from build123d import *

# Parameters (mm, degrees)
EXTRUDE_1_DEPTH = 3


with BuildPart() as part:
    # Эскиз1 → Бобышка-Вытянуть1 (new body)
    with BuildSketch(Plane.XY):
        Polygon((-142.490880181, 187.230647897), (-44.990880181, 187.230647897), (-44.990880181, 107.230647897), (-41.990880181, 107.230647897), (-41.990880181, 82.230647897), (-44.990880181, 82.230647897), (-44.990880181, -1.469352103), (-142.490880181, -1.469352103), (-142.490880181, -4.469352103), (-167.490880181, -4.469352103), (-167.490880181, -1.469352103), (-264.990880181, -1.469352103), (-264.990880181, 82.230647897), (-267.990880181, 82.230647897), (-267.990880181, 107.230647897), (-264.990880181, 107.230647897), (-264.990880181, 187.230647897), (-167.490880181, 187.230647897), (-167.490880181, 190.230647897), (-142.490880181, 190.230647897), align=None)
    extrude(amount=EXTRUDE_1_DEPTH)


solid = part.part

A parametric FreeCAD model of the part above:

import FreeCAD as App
import Part
import Sketcher
Q = App.Units.Quantity


def add_polygon(sketch, points):
    """Adds a closed chain of lines whose ends are joined by coincident constraints."""
    first, n = sketch.GeometryCount, len(points)
    for a, b in zip(points, points[1:] + points[:1]):
        sketch.addGeometry(Part.LineSegment(App.Vector(*a, 0), App.Vector(*b, 0)), False)
    for i in range(n):
        sketch.addConstraint(Sketcher.Constraint("Coincident", first + i, 2, first + (i + 1) % n, 1))

doc = App.newDocument("Part")
body = doc.addObject("PartDesign::Body", "Body")

# Sketch on XY plane
sketch1 = body.newObject("Sketcher::SketchObject", "Sketch")
sketch1.AttachmentSupport = (doc.getObject("XY_Plane"), [""])
sketch1.MapMode = "FlatFace"
add_polygon(sketch1, [(-45, 187.2), (-142.5, 187.2), (-142.5, 190.2), (-167.5, 190.2), (-167.5, 187.2), (-265, 187.2), (-265, 107.2), (-268, 107.2), (-268, 82.2), (-265, 82.2), (-265, -1.5), (-167.5, -1.5), (-167.5, -4.5), (-142.5, -4.5), (-142.5, -1.5), (-45, -1.5), (-45, 82.2), (-42, 82.2), (-42, 107.2), (-45, 107.2)])  # lines 0-19
sketch1.addConstraint(Sketcher.Constraint("Horizontal", 0))
sketch1.addConstraint(Sketcher.Constraint("Vertical", 1))
sketch1.addConstraint(Sketcher.Constraint("Horizontal", 2))
sketch1.addConstraint(Sketcher.Constraint("Vertical", 3))
sketch1.addConstraint(Sketcher.Constraint("Horizontal", 4))
sketch1.addConstraint(Sketcher.Constraint("Vertical", 5))
sketch1.addConstraint(Sketcher.Constraint("Horizontal", 6))
sketch1.addConstraint(Sketcher.Constraint("Vertical", 7))
sketch1.addConstraint(Sketcher.Constraint("Horizontal", 8))
sketch1.addConstraint(Sketcher.Constraint("Vertical", 9))
sketch1.addConstraint(Sketcher.Constraint("Horizontal", 10))
sketch1.addConstraint(Sketcher.Constraint("Vertical", 11))
sketch1.addConstraint(Sketcher.Constraint("Horizontal", 12))
sketch1.addConstraint(Sketcher.Constraint("Vertical", 13))
sketch1.addConstraint(Sketcher.Constraint("Horizontal", 14))
sketch1.addConstraint(Sketcher.Constraint("Vertical", 15))
sketch1.addConstraint(Sketcher.Constraint("Horizontal", 16))
sketch1.addConstraint(Sketcher.Constraint("Vertical", 17))
sketch1.addConstraint(Sketcher.Constraint("Horizontal", 18))
sketch1.addConstraint(Sketcher.Constraint("Vertical", 19))
sketch1.addConstraint(Sketcher.Constraint("Horizontal", 0, 2, 3, 2))
sketch1.addConstraint(Sketcher.Constraint("Horizontal", 10, 2, 13, 2))
sketch1.addConstraint(Sketcher.Constraint("Horizontal", 8, 2, 15, 2))
sketch1.addConstraint(Sketcher.Constraint("Horizontal", 6, 2, 17, 2))
sketch1.addConstraint(Sketcher.Constraint("Vertical", 5, 2, 8, 2))
sketch1.addConstraint(Sketcher.Constraint("Vertical", 3, 2, 10, 2))
sketch1.addConstraint(Sketcher.Constraint("Vertical", 1, 2, 12, 2))
sketch1.addConstraint(Sketcher.Constraint("Vertical", 15, 2, 18, 2))
sketch1.addConstraint(Sketcher.Constraint("Equal", 0, 4))
sketch1.addConstraint(Sketcher.Constraint("Equal", 8, 16))
sketch1.addConstraint(Sketcher.Constraint("Equal", 18, 1))
sketch1.addConstraint(Sketcher.Constraint("Equal", 12, 7))
sketch1.addConstraint(Sketcher.Constraint("Equal", 3, 11))
sketch1.addConstraint(Sketcher.Constraint("DistanceX", 2, 2, 2, 1, Q("25 mm")))
sketch1.addConstraint(Sketcher.Constraint("DistanceX", 6, 2, 6, 1, Q("3 mm")))
sketch1.addConstraint(Sketcher.Constraint("DistanceY", 5, 2, 5, 1, Q("80 mm")))
sketch1.addConstraint(Sketcher.Constraint("DistanceX", 0, 2, 0, 1, Q("97.5 mm")))
sketch1.addConstraint(Sketcher.Constraint("DistanceY", 9, 2, 9, 1, Q("83.7 mm")))
sketch1.addConstraint(Sketcher.Constraint("DistanceX", 0, 2, -1, 1, Q("142.49088 mm")))
sketch1.addConstraint(Sketcher.Constraint("DistanceY", -1, 1, 0, 2, Q("187.230648 mm")))
pad1 = body.newObject("PartDesign::Pad", "Pad")
pad1.Profile = sketch1
pad1.Length = 3

doc.recompute()
